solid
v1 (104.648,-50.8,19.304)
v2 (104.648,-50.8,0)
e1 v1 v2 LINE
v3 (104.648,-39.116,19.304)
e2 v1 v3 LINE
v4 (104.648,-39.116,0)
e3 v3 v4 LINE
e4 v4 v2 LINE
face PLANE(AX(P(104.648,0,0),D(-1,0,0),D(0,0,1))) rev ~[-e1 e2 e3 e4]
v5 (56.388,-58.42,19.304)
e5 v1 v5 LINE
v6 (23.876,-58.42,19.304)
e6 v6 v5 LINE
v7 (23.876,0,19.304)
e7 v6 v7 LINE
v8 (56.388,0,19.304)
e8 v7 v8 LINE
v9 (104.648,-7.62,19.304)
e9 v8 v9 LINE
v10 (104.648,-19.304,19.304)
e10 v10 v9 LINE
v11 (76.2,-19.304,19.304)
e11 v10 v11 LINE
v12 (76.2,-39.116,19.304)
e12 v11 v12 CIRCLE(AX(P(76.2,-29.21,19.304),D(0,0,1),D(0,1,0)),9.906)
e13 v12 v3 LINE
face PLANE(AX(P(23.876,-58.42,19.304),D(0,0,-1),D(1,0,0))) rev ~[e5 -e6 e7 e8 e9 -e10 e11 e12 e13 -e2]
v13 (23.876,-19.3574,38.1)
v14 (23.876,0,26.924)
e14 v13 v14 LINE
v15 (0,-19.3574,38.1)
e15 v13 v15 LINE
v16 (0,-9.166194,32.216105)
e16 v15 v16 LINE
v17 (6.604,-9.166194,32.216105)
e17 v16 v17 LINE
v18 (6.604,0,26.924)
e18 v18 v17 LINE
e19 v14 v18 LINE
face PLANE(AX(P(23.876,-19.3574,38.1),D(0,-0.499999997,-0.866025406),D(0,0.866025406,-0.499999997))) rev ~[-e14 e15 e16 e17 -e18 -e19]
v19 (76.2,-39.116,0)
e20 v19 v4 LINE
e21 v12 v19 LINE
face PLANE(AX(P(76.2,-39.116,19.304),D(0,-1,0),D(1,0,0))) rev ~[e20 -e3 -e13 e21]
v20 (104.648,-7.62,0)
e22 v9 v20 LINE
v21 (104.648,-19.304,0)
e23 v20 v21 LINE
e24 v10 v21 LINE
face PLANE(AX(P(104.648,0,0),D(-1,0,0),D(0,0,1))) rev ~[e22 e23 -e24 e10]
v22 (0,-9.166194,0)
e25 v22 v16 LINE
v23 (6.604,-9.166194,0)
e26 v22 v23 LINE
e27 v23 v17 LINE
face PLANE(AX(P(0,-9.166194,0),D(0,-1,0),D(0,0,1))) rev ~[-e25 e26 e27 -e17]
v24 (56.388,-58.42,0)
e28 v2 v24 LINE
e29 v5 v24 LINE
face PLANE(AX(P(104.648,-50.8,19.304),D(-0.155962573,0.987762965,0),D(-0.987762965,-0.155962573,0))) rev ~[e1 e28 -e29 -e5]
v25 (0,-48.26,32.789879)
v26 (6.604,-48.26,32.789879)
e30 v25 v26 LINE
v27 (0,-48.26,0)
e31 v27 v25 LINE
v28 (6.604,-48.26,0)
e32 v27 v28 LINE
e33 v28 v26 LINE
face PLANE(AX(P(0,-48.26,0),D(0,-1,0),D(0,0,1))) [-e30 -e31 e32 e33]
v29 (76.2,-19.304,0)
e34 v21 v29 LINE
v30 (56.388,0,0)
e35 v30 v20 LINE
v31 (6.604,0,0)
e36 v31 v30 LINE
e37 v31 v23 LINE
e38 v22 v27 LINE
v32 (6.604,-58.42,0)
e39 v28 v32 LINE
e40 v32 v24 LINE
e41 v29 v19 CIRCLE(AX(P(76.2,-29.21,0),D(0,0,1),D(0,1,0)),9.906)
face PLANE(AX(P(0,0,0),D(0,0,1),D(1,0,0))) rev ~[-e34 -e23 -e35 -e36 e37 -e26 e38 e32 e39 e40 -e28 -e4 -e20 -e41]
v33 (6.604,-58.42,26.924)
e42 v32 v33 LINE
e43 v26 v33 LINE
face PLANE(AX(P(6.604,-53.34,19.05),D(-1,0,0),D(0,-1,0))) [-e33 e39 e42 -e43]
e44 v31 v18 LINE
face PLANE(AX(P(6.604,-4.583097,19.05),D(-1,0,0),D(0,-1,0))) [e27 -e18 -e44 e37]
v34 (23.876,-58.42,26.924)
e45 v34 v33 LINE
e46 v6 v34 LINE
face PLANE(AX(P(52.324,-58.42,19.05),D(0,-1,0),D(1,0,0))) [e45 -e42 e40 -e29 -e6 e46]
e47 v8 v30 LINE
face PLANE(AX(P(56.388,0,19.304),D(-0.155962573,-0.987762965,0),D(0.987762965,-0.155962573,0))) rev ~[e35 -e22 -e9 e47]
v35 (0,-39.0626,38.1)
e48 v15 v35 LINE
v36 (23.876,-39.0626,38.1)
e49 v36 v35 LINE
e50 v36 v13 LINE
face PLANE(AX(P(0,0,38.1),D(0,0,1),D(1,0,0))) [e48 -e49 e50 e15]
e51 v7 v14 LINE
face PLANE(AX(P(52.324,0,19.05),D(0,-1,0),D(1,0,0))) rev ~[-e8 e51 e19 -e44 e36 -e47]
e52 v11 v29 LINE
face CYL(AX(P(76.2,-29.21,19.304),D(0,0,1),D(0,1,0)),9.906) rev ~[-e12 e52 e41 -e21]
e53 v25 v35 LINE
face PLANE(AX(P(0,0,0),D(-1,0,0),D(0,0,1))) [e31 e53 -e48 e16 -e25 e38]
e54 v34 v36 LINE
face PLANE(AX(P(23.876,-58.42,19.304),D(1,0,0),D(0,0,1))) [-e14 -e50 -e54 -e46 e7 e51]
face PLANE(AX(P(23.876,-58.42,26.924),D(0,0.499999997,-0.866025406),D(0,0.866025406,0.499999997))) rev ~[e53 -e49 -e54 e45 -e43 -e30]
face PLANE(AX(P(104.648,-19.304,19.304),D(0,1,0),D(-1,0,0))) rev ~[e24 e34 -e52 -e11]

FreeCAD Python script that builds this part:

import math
import FreeCAD as App
import Part
import Sketcher
Q = App.Units.Quantity

doc = App.newDocument("Part")
body = doc.addObject("PartDesign::Body", "Body")

sketch1 = doc.addObject("Sketcher::SketchObject", "Sketch")
body.addObject(sketch1)
sketch1.AttachmentSupport = (doc.XZ_Plane, [""])
sketch1.MapMode = "FlatFace"
sketch1.addGeometry([
    Part.LineSegment(App.Vector(0, 38, 0), App.Vector(0, 0, 0)),
    Part.LineSegment(App.Vector(0, 0, 0), App.Vector(105, 0, 0)),
    Part.LineSegment(App.Vector(105, 0, 0), App.Vector(105, 38, 0)),
    Part.LineSegment(App.Vector(105, 38, 0), App.Vector(0, 38, 0)),
], False)
sketch1.addConstraint([
    Sketcher.Constraint("Coincident", 0, 2, 1, 1),
    Sketcher.Constraint("Coincident", 1, 2, 2, 1),
    Sketcher.Constraint("Coincident", 2, 2, 3, 1),
    Sketcher.Constraint("Coincident", 3, 2, 0, 1),
    Sketcher.Constraint("Vertical", 0),
    Sketcher.Constraint("Horizontal", 1),
    Sketcher.Constraint("Vertical", 2),
    Sketcher.Constraint("Horizontal", 3),
    Sketcher.Constraint("Coincident", 0, 2, -1, 1),
    Sketcher.Constraint("DistanceY", 0, 2, 0, 1, Q("1.5 in")),
    Sketcher.Constraint("DistanceX", 1, 1, 1, 2, Q("4.12 in")),
])
pad1 = doc.addObject("PartDesign::Pad", "Pad")
body.addObject(pad1)
pad1.Profile = sketch1
pad1.Length = Q("2.3 in")

sketch2 = doc.addObject("Sketcher::SketchObject", "Sketch001")
body.addObject(sketch2)
sketch2.AttachmentSupport = (doc.XZ_Plane, [""])
sketch2.MapMode = "FlatFace"
sketch2.AttachmentOffset = App.Placement(App.Vector(0, 0, 2.3 * 25.4), App.Rotation())
sketch2.addGeometry([
    Part.LineSegment(App.Vector(24, 38, 0), App.Vector(24, 19, 0)),
    Part.LineSegment(App.Vector(24, 19, 0), App.Vector(105, 19, 0)),
    Part.LineSegment(App.Vector(105, 19, 0), App.Vector(105, 38, 0)),
    Part.LineSegment(App.Vector(105, 38, 0), App.Vector(24, 38, 0)),
], False)
sketch2.addConstraint([
    Sketcher.Constraint("Coincident", 0, 2, 1, 1),
    Sketcher.Constraint("Coincident", 1, 2, 2, 1),
    Sketcher.Constraint("Coincident", 2, 2, 3, 1),
    Sketcher.Constraint("Coincident", 3, 2, 0, 1),
    Sketcher.Constraint("Vertical", 0),
    Sketcher.Constraint("Horizontal", 1),
    Sketcher.Constraint("Vertical", 2),
    Sketcher.Constraint("Horizontal", 3),
    Sketcher.Constraint("DistanceX", 1, 1, 1, 2, Q("3.18 in")),
    Sketcher.Constraint("DistanceY", 0, 2, 0, 1, Q("0.74 in")),
    Sketcher.Constraint("DistanceY", -1, 1, 2, 2, Q("1.5 in")),
    Sketcher.Constraint("DistanceX", -1, 1, 0, 2, Q("0.94 in")),
])
pocket1 = doc.addObject("PartDesign::Pocket", "Pocket")
body.addObject(pocket1)
pocket1.Profile = sketch2
pocket1.Length = Q("2.3 in")

sketch3 = doc.addObject("Sketcher::SketchObject", "Sketch002")
body.addObject(sketch3)
sketch3.AttachmentSupport = (doc.XY_Plane, [""])
sketch3.MapMode = "FlatFace"
sketch3.AttachmentOffset = App.Placement(App.Vector(0, 0, 0.76 * 25.4), App.Rotation())
sketch3.addGeometry([
    Part.LineSegment(App.Vector(105, 0, 0), App.Vector(56, 0, 0)),
    Part.LineSegment(App.Vector(56, 0, 0), App.Vector(105, -8, 0)),
    Part.LineSegment(App.Vector(105, -8, 0), App.Vector(105, 0, 0)),
    Part.LineSegment(App.Vector(76, -39, 0), App.Vector(105, -39, 0)),
    Part.LineSegment(App.Vector(105, -39, 0), App.Vector(105, -19, 0)),
    Part.LineSegment(App.Vector(105, -19, 0), App.Vector(76, -19, 0)),
    Part.ArcOfCircle(Part.Circle(App.Vector(76, -29, 0), App.Vector(0, 0, 1), 10), math.radians(90), math.radians(270)),
    Part.LineSegment(App.Vector(56, -58, 0), App.Vector(105, -58, 0)),
    Part.LineSegment(App.Vector(105, -58, 0), App.Vector(105, -51, 0)),
    Part.LineSegment(App.Vector(105, -51, 0), App.Vector(56, -58, 0)),
], False)
sketch3.addConstraint([
    Sketcher.Constraint("Coincident", 0, 2, 1, 1),
    Sketcher.Constraint("Coincident", 1, 2, 2, 1),
    Sketcher.Constraint("Coincident", 2, 2, 0, 1),
    Sketcher.Constraint("Coincident", 3, 2, 4, 1),
    Sketcher.Constraint("Coincident", 4, 2, 5, 1),
    Sketcher.Constraint("Tangent", 5, 2, 6, 1),
    Sketcher.Constraint("Tangent", 6, 2, 3, 1),
    Sketcher.Constraint("Coincident", 7, 2, 8, 1),
    Sketcher.Constraint("Coincident", 8, 2, 9, 1),
    Sketcher.Constraint("Coincident", 9, 2, 7, 1),
    Sketcher.Constraint("Horizontal", 0),
    Sketcher.Constraint("Vertical", 2),
    Sketcher.Constraint("Horizontal", 3),
    Sketcher.Constraint("Vertical", 4),
    Sketcher.Constraint("Horizontal", 5),
    Sketcher.Constraint("Horizontal", 7),
    Sketcher.Constraint("Vertical", 8),
    Sketcher.Constraint("PointOnObject", 0, 2, -1),
    Sketcher.Constraint("Vertical", 2, 2, 3, 2),
    Sketcher.Constraint("Vertical", 4, 2, 7, 2),
    Sketcher.Constraint("Vertical", 0, 2, 9, 2),
    Sketcher.Constraint("Equal", 2, 8),
    Sketcher.Constraint("Radius", 6, Q("0.39 in")),
    Sketcher.Constraint("DistanceX", 0, 2, 0, 1, Q("1.9 in")),
    Sketcher.Constraint("DistanceY", 2, 1, 2, 2, Q("0.3 in")),
    Sketcher.Constraint("DistanceX", -1, 1, 6, 3, Q("3 in")),
    Sketcher.Constraint("DistanceY", 8, 2, -1, 1, Q("2 in")),
    Sketcher.Constraint("DistanceX", 3, 1, 3, 2, Q("1.12 in")),
    Sketcher.Constraint("DistanceY", 6, 3, -1, 1, Q("1.15 in")),
])
pocket2 = doc.addObject("PartDesign::Pocket", "Pocket001")
body.addObject(pocket2)
pocket2.Profile = sketch3
pocket2.Length = Q("0.76 in")

sketch4 = doc.addObject("Sketcher::SketchObject", "Sketch003")
body.addObject(sketch4)
sketch4.AttachmentSupport = (doc.YZ_Plane, [""])
sketch4.MapMode = "FlatFace"
sketch4.addGeometry([
    Part.LineSegment(App.Vector(0, 38, 0), App.Vector(0, 0, 0)),
    Part.LineSegment(App.Vector(0, 0, 0), App.Vector(-9, 0, 0)),
    Part.LineSegment(App.Vector(-9, 0, 0), App.Vector(-9, 38, 0)),
    Part.LineSegment(App.Vector(-9, 38, 0), App.Vector(0, 38, 0)),
    Part.LineSegment(App.Vector(-48, 38, 0), App.Vector(-48, 0, 0)),
    Part.LineSegment(App.Vector(-48, 0, 0), App.Vector(-58, 0, 0)),
    Part.LineSegment(App.Vector(-58, 0, 0), App.Vector(-58, 38, 0)),
    Part.LineSegment(App.Vector(-58, 38, 0), App.Vector(-48, 38, 0)),
], False)
sketch4.addConstraint([
    Sketcher.Constraint("Coincident", 0, 2, 1, 1),
    Sketcher.Constraint("Coincident", 1, 2, 2, 1),
    Sketcher.Constraint("Coincident", 2, 2, 3, 1),
    Sketcher.Constraint("Coincident", 3, 2, 0, 1),
    Sketcher.Constraint("Coincident", 4, 2, 5, 1),
    Sketcher.Constraint("Coincident", 5, 2, 6, 1),
    Sketcher.Constraint("Coincident", 6, 2, 7, 1),
    Sketcher.Constraint("Coincident", 7, 2, 4, 1),
    Sketcher.Constraint("Vertical", 0),
    Sketcher.Constraint("Horizontal", 1),
    Sketcher.Constraint("Vertical", 2),
    Sketcher.Constraint("Horizontal", 3),
    Sketcher.Constraint("Vertical", 4),
    Sketcher.Constraint("Horizontal", 5),
    Sketcher.Constraint("Vertical", 6),
    Sketcher.Constraint("Horizontal", 7),
    Sketcher.Constraint("Coincident", 0, 2, -1, 1),
    Sketcher.Constraint("PointOnObject", 4, 2, -1),
    Sketcher.Constraint("Horizontal", 3, 2, 6, 2),
    Sketcher.Constraint("DistanceX", 5, 2, 5, 1, Q("0.4 in")),
    Sketcher.Constraint("DistanceY", 0, 2, 0, 1, Q("1.5 in")),
    Sketcher.Constraint("DistanceX", 4, 2, -1, 1, Q("1.9 in")),
    Sketcher.Constraint("DistanceX", 1, 2, 1, 1, 9.166194),
])
pocket3 = doc.addObject("PartDesign::Pocket", "Pocket002")
body.addObject(pocket3)
pocket3.Profile = sketch4
pocket3.Length = Q("0.26 in")
pocket3.Reversed = True

sketch5 = doc.addObject("Sketcher::SketchObject", "Sketch004")
body.addObject(sketch5)
sketch5.AttachmentSupport = (doc.YZ_Plane, [""])
sketch5.MapMode = "FlatFace"
sketch5.AttachmentOffset = App.Placement(App.Vector(0, 0, 0.94 * 25.4), App.Rotation())
sketch5.addGeometry([
    Part.LineSegment(App.Vector(-19, 38, 0), App.Vector(0, 27, 0)),
    Part.LineSegment(App.Vector(0, 27, 0), App.Vector(0, 38, 0)),
    Part.LineSegment(App.Vector(0, 38, 0), App.Vector(-19, 38, 0)),
], False)
sketch5.addConstraint([
    Sketcher.Constraint("Coincident", 0, 2, 1, 1),
    Sketcher.Constraint("Coincident", 1, 2, 2, 1),
    Sketcher.Constraint("Coincident", 2, 2, 0, 1),
    Sketcher.Constraint("Vertical", 1),
    Sketcher.Constraint("Horizontal", 2),
    Sketcher.Constraint("PointOnObject", 0, 2, -2),
    Sketcher.Constraint("Angle", 0, Q("-30 deg")),
    Sketcher.Constraint("DistanceY", 1, 1, 1, 2, Q("0.44 in")),
    Sketcher.Constraint("DistanceY", -1, 1, 1, 2, Q("1.5 in")),
])
pocket4 = doc.addObject("PartDesign::Pocket", "Pocket003")
body.addObject(pocket4)
pocket4.Profile = sketch5
pocket4.Length = Q("0.94 in")

sketch6 = doc.addObject("Sketcher::SketchObject", "Sketch005")
body.addObject(sketch6)
sketch6.AttachmentSupport = (doc.YZ_Plane, [""])
sketch6.MapMode = "FlatFace"
sketch6.AttachmentOffset = App.Placement(App.Vector(0, 0, 0.94 * 25.4), App.Rotation())
sketch6.addGeometry([
    Part.LineSegment(App.Vector(-58, 38, 0), App.Vector(-58, 27, 0)),
    Part.LineSegment(App.Vector(-58, 27, 0), App.Vector(-39, 38, 0)),
    Part.LineSegment(App.Vector(-39, 38, 0), App.Vector(-58, 38, 0)),
], False)
sketch6.addConstraint([
    Sketcher.Constraint("Coincident", 0, 2, 1, 1),
    Sketcher.Constraint("Coincident", 1, 2, 2, 1),
    Sketcher.Constraint("Coincident", 2, 2, 0, 1),
    Sketcher.Constraint("Vertical", 0),
    Sketcher.Constraint("Horizontal", 2),
    Sketcher.Constraint("Angle", 1, Q("30 deg")),
    Sketcher.Constraint("DistanceY", 0, 2, 0, 1, Q("0.44 in")),
    Sketcher.Constraint("DistanceX", 0, 2, -1, 1, Q("2.3 in")),
    Sketcher.Constraint("DistanceY", -1, 1, 1, 2, Q("1.5 in")),
])
pocket5 = doc.addObject("PartDesign::Pocket", "Pocket004")
body.addObject(pocket5)
pocket5.Profile = sketch6
pocket5.Length = Q("0.94 in")

doc.recompute()
